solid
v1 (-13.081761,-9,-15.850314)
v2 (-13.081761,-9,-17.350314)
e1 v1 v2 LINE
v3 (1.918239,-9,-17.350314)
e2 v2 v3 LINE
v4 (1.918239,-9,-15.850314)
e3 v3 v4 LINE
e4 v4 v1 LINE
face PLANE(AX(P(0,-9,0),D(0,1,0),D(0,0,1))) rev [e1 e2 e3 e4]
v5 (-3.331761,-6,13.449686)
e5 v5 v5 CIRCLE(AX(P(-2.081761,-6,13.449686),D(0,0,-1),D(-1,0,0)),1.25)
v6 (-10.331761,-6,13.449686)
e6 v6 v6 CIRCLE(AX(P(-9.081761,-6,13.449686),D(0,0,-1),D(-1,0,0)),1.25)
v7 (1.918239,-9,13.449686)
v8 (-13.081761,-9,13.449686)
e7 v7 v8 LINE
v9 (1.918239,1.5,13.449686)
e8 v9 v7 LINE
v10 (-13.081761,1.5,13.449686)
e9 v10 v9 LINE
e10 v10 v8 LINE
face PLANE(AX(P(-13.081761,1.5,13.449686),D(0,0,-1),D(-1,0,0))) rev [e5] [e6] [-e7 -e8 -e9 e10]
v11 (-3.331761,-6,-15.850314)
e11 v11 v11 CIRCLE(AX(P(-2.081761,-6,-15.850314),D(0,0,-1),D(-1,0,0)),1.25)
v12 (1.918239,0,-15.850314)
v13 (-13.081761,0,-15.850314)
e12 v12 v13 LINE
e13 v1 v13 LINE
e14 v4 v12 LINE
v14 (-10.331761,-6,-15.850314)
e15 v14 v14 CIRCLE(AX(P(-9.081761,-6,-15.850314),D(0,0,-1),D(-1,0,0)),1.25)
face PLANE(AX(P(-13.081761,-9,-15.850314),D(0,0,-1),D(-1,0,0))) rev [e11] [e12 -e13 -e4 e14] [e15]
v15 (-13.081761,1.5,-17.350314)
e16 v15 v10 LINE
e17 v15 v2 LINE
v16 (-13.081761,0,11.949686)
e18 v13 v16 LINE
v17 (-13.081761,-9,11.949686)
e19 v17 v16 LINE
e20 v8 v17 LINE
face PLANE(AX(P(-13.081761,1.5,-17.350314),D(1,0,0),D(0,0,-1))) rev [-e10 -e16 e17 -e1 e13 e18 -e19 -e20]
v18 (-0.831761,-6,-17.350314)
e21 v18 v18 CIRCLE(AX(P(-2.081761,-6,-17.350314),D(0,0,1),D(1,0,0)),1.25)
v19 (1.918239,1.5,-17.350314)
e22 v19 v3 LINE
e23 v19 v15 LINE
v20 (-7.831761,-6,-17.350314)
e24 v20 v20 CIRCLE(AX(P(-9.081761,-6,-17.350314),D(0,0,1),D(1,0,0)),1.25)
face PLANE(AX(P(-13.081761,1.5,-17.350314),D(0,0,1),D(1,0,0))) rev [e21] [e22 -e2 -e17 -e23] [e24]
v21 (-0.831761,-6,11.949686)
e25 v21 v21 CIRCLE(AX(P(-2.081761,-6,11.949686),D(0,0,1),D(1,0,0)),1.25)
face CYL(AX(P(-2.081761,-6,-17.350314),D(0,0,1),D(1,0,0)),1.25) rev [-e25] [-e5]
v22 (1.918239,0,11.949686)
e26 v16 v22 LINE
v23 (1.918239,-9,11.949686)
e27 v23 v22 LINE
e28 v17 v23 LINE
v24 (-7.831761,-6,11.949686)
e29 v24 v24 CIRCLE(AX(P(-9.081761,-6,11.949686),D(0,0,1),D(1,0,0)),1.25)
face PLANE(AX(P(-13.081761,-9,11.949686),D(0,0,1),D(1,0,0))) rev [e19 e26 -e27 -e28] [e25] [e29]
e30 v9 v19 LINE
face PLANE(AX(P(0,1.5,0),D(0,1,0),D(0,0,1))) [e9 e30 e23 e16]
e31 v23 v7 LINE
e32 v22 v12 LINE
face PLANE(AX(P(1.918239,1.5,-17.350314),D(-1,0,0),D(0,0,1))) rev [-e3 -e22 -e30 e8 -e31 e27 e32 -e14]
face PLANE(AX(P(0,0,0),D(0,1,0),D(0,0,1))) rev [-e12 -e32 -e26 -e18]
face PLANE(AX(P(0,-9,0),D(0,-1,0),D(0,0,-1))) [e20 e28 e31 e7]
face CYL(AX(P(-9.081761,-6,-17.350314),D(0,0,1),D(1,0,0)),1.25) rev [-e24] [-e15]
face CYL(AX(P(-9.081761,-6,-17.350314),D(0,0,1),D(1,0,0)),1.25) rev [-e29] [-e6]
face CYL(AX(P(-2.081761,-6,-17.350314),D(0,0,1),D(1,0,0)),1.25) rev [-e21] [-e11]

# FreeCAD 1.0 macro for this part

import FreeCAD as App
import Part
import Sketcher

V = App.Vector
Q = App.Units.Quantity

doc = App.newDocument("Part")
body = doc.addObject("PartDesign::Body", "Body")

# Sketch on XZ plane
sketch1 = doc.addObject("Sketcher::SketchObject", "Sketch")
body.addObject(sketch1)
sketch1.AttachmentSupport = (doc.XZ_Plane, [""])
sketch1.MapMode = "FlatFace"
sketch1.addGeometry(Part.LineSegment(V(-13, -17, 0), V(-13, 13, 0)), False)
sketch1.addGeometry(Part.LineSegment(V(-13, 13, 0), V(2, 13, 0)), False)
sketch1.addGeometry(Part.LineSegment(V(2, 13, 0), V(2, -17, 0)), False)
sketch1.addGeometry(Part.LineSegment(V(2, -17, 0), V(-13, -17, 0)), False)
sketch1.addConstraint(Sketcher.Constraint("Coincident", 0, 2, 1, 1))
sketch1.addConstraint(Sketcher.Constraint("Coincident", 1, 2, 2, 1))
sketch1.addConstraint(Sketcher.Constraint("Coincident", 2, 2, 3, 1))
sketch1.addConstraint(Sketcher.Constraint("Coincident", 3, 2, 0, 1))
sketch1.addConstraint(Sketcher.Constraint("Vertical", 0))
sketch1.addConstraint(Sketcher.Constraint("Horizontal", 1))
sketch1.addConstraint(Sketcher.Constraint("Vertical", 2))
sketch1.addConstraint(Sketcher.Constraint("Horizontal", 3))
sketch1.addConstraint(Sketcher.Constraint("DistanceX", 1, 1, 1, 2, Q("15 mm")))
sketch1.addConstraint(Sketcher.Constraint("DistanceY", 0, 1, 0, 2, Q("30.8 mm")))
sketch1.addConstraint(Sketcher.Constraint("DistanceX", 0, 2, -1, 1, Q("13.081761 mm")))
sketch1.addConstraint(Sketcher.Constraint("DistanceY", -1, 1, 0, 2, Q("13.449686 mm")))
pad1 = doc.addObject("PartDesign::Pad", "Pad")
body.addObject(pad1)
pad1.Profile = sketch1
pad1.Length = 1.5
pad1.Reversed = True

# Sketch on XZ plane
sketch2 = doc.addObject("Sketcher::SketchObject", "Sketch001")
body.addObject(sketch2)
sketch2.AttachmentSupport = (doc.XZ_Plane, [""])
sketch2.MapMode = "FlatFace"
sketch2.addGeometry(Part.LineSegment(V(-13.1, 13.4, 0), V(-13.1, 11.9, 0)), False)
sketch2.addGeometry(Part.LineSegment(V(-13.1, 11.9, 0), V(1.9, 11.9, 0)), False)
sketch2.addGeometry(Part.LineSegment(V(1.9, 11.9, 0), V(1.9, 13.4, 0)), False)
sketch2.addGeometry(Part.LineSegment(V(1.9, 13.4, 0), V(-13.1, 13.4, 0)), False)
sketch2.addGeometry(Part.LineSegment(V(-13.1, -15.9, 0), V(-13.1, -17.4, 0)), False)
sketch2.addGeometry(Part.LineSegment(V(-13.1, -17.4, 0), V(1.9, -17.4, 0)), False)
sketch2.addGeometry(Part.LineSegment(V(1.9, -17.4, 0), V(1.9, -15.9, 0)), False)
sketch2.addGeometry(Part.LineSegment(V(1.9, -15.9, 0), V(-13.1, -15.9, 0)), False)
sketch2.addConstraint(Sketcher.Constraint("Coincident", 0, 2, 1, 1))
sketch2.addConstraint(Sketcher.Constraint("Coincident", 1, 2, 2, 1))
sketch2.addConstraint(Sketcher.Constraint("Coincident", 2, 2, 3, 1))
sketch2.addConstraint(Sketcher.Constraint("Coincident", 3, 2, 0, 1))
sketch2.addConstraint(Sketcher.Constraint("Coincident", 4, 2, 5, 1))
sketch2.addConstraint(Sketcher.Constraint("Coincident", 5, 2, 6, 1))
sketch2.addConstraint(Sketcher.Constraint("Coincident", 6, 2, 7, 1))
sketch2.addConstraint(Sketcher.Constraint("Coincident", 7, 2, 4, 1))
sketch2.addConstraint(Sketcher.Constraint("Vertical", 0))
sketch2.addConstraint(Sketcher.Constraint("Horizontal", 1))
sketch2.addConstraint(Sketcher.Constraint("Vertical", 2))
sketch2.addConstraint(Sketcher.Constraint("Horizontal", 3))
sketch2.addConstraint(Sketcher.Constraint("Vertical", 4))
sketch2.addConstraint(Sketcher.Constraint("Horizontal", 5))
sketch2.addConstraint(Sketcher.Constraint("Vertical", 6))
sketch2.addConstraint(Sketcher.Constraint("Horizontal", 7))
sketch2.addConstraint(Sketcher.Constraint("Vertical", 3, 2, 4, 2))
sketch2.addConstraint(Sketcher.Constraint("Vertical", 2, 2, 5, 2))
sketch2.addConstraint(Sketcher.Constraint("Equal", 2, 4))
sketch2.addConstraint(Sketcher.Constraint("DistanceX", 1, 1, 1, 2, Q("15 mm")))
sketch2.addConstraint(Sketcher.Constraint("DistanceY", 0, 2, 0, 1, Q("1.5 mm")))
sketch2.addConstraint(Sketcher.Constraint("DistanceY", 4, 2, 0, 2, Q("29.3 mm")))
sketch2.addConstraint(Sketcher.Constraint("DistanceX", 0, 2, -1, 1, Q("13.081761 mm")))
sketch2.addConstraint(Sketcher.Constraint("DistanceY", -1, 1, 0, 2, Q("11.949686 mm")))
pad2 = doc.addObject("PartDesign::Pad", "Pad001")
body.addObject(pad2)
pad2.Profile = sketch2
pad2.Length = 9

# Sketch on XY plane
sketch3 = doc.addObject("Sketcher::SketchObject", "Sketch002")
body.addObject(sketch3)
sketch3.AttachmentSupport = (doc.XY_Plane, [""])
sketch3.MapMode = "FlatFace"
sketch3.AttachmentOffset = App.Placement(V(0, 0, 13.449686), App.Rotation())
sketch3.addGeometry(Part.Circle(V(-9.1, -6, 0), V(0, 0, 1), 1.2), False)
sketch3.addGeometry(Part.Circle(V(-2.1, -6, 0), V(0, 0, 1), 1.2), False)
sketch3.addConstraint(Sketcher.Constraint("Equal", 0, 1))
sketch3.addConstraint(Sketcher.Constraint("Horizontal", 0, 3, 1, 3))
sketch3.addConstraint(Sketcher.Constraint("Diameter", 0, Q("2.5 mm")))
sketch3.addConstraint(Sketcher.Constraint("DistanceY", 0, 3, -1, 1, Q("6 mm")))
sketch3.addConstraint(Sketcher.Constraint("DistanceX", 0, 3, 1, 3, Q("7 mm")))
sketch3.addConstraint(Sketcher.Constraint("DistanceX", 0, 3, -1, 1, Q("9.081761 mm")))
pocket1 = doc.addObject("PartDesign::Pocket", "Pocket")
body.addObject(pocket1)
pocket1.Profile = sketch3
pocket1.Type = "ThroughAll"
pocket1.Midplane = True

doc.recompute()
